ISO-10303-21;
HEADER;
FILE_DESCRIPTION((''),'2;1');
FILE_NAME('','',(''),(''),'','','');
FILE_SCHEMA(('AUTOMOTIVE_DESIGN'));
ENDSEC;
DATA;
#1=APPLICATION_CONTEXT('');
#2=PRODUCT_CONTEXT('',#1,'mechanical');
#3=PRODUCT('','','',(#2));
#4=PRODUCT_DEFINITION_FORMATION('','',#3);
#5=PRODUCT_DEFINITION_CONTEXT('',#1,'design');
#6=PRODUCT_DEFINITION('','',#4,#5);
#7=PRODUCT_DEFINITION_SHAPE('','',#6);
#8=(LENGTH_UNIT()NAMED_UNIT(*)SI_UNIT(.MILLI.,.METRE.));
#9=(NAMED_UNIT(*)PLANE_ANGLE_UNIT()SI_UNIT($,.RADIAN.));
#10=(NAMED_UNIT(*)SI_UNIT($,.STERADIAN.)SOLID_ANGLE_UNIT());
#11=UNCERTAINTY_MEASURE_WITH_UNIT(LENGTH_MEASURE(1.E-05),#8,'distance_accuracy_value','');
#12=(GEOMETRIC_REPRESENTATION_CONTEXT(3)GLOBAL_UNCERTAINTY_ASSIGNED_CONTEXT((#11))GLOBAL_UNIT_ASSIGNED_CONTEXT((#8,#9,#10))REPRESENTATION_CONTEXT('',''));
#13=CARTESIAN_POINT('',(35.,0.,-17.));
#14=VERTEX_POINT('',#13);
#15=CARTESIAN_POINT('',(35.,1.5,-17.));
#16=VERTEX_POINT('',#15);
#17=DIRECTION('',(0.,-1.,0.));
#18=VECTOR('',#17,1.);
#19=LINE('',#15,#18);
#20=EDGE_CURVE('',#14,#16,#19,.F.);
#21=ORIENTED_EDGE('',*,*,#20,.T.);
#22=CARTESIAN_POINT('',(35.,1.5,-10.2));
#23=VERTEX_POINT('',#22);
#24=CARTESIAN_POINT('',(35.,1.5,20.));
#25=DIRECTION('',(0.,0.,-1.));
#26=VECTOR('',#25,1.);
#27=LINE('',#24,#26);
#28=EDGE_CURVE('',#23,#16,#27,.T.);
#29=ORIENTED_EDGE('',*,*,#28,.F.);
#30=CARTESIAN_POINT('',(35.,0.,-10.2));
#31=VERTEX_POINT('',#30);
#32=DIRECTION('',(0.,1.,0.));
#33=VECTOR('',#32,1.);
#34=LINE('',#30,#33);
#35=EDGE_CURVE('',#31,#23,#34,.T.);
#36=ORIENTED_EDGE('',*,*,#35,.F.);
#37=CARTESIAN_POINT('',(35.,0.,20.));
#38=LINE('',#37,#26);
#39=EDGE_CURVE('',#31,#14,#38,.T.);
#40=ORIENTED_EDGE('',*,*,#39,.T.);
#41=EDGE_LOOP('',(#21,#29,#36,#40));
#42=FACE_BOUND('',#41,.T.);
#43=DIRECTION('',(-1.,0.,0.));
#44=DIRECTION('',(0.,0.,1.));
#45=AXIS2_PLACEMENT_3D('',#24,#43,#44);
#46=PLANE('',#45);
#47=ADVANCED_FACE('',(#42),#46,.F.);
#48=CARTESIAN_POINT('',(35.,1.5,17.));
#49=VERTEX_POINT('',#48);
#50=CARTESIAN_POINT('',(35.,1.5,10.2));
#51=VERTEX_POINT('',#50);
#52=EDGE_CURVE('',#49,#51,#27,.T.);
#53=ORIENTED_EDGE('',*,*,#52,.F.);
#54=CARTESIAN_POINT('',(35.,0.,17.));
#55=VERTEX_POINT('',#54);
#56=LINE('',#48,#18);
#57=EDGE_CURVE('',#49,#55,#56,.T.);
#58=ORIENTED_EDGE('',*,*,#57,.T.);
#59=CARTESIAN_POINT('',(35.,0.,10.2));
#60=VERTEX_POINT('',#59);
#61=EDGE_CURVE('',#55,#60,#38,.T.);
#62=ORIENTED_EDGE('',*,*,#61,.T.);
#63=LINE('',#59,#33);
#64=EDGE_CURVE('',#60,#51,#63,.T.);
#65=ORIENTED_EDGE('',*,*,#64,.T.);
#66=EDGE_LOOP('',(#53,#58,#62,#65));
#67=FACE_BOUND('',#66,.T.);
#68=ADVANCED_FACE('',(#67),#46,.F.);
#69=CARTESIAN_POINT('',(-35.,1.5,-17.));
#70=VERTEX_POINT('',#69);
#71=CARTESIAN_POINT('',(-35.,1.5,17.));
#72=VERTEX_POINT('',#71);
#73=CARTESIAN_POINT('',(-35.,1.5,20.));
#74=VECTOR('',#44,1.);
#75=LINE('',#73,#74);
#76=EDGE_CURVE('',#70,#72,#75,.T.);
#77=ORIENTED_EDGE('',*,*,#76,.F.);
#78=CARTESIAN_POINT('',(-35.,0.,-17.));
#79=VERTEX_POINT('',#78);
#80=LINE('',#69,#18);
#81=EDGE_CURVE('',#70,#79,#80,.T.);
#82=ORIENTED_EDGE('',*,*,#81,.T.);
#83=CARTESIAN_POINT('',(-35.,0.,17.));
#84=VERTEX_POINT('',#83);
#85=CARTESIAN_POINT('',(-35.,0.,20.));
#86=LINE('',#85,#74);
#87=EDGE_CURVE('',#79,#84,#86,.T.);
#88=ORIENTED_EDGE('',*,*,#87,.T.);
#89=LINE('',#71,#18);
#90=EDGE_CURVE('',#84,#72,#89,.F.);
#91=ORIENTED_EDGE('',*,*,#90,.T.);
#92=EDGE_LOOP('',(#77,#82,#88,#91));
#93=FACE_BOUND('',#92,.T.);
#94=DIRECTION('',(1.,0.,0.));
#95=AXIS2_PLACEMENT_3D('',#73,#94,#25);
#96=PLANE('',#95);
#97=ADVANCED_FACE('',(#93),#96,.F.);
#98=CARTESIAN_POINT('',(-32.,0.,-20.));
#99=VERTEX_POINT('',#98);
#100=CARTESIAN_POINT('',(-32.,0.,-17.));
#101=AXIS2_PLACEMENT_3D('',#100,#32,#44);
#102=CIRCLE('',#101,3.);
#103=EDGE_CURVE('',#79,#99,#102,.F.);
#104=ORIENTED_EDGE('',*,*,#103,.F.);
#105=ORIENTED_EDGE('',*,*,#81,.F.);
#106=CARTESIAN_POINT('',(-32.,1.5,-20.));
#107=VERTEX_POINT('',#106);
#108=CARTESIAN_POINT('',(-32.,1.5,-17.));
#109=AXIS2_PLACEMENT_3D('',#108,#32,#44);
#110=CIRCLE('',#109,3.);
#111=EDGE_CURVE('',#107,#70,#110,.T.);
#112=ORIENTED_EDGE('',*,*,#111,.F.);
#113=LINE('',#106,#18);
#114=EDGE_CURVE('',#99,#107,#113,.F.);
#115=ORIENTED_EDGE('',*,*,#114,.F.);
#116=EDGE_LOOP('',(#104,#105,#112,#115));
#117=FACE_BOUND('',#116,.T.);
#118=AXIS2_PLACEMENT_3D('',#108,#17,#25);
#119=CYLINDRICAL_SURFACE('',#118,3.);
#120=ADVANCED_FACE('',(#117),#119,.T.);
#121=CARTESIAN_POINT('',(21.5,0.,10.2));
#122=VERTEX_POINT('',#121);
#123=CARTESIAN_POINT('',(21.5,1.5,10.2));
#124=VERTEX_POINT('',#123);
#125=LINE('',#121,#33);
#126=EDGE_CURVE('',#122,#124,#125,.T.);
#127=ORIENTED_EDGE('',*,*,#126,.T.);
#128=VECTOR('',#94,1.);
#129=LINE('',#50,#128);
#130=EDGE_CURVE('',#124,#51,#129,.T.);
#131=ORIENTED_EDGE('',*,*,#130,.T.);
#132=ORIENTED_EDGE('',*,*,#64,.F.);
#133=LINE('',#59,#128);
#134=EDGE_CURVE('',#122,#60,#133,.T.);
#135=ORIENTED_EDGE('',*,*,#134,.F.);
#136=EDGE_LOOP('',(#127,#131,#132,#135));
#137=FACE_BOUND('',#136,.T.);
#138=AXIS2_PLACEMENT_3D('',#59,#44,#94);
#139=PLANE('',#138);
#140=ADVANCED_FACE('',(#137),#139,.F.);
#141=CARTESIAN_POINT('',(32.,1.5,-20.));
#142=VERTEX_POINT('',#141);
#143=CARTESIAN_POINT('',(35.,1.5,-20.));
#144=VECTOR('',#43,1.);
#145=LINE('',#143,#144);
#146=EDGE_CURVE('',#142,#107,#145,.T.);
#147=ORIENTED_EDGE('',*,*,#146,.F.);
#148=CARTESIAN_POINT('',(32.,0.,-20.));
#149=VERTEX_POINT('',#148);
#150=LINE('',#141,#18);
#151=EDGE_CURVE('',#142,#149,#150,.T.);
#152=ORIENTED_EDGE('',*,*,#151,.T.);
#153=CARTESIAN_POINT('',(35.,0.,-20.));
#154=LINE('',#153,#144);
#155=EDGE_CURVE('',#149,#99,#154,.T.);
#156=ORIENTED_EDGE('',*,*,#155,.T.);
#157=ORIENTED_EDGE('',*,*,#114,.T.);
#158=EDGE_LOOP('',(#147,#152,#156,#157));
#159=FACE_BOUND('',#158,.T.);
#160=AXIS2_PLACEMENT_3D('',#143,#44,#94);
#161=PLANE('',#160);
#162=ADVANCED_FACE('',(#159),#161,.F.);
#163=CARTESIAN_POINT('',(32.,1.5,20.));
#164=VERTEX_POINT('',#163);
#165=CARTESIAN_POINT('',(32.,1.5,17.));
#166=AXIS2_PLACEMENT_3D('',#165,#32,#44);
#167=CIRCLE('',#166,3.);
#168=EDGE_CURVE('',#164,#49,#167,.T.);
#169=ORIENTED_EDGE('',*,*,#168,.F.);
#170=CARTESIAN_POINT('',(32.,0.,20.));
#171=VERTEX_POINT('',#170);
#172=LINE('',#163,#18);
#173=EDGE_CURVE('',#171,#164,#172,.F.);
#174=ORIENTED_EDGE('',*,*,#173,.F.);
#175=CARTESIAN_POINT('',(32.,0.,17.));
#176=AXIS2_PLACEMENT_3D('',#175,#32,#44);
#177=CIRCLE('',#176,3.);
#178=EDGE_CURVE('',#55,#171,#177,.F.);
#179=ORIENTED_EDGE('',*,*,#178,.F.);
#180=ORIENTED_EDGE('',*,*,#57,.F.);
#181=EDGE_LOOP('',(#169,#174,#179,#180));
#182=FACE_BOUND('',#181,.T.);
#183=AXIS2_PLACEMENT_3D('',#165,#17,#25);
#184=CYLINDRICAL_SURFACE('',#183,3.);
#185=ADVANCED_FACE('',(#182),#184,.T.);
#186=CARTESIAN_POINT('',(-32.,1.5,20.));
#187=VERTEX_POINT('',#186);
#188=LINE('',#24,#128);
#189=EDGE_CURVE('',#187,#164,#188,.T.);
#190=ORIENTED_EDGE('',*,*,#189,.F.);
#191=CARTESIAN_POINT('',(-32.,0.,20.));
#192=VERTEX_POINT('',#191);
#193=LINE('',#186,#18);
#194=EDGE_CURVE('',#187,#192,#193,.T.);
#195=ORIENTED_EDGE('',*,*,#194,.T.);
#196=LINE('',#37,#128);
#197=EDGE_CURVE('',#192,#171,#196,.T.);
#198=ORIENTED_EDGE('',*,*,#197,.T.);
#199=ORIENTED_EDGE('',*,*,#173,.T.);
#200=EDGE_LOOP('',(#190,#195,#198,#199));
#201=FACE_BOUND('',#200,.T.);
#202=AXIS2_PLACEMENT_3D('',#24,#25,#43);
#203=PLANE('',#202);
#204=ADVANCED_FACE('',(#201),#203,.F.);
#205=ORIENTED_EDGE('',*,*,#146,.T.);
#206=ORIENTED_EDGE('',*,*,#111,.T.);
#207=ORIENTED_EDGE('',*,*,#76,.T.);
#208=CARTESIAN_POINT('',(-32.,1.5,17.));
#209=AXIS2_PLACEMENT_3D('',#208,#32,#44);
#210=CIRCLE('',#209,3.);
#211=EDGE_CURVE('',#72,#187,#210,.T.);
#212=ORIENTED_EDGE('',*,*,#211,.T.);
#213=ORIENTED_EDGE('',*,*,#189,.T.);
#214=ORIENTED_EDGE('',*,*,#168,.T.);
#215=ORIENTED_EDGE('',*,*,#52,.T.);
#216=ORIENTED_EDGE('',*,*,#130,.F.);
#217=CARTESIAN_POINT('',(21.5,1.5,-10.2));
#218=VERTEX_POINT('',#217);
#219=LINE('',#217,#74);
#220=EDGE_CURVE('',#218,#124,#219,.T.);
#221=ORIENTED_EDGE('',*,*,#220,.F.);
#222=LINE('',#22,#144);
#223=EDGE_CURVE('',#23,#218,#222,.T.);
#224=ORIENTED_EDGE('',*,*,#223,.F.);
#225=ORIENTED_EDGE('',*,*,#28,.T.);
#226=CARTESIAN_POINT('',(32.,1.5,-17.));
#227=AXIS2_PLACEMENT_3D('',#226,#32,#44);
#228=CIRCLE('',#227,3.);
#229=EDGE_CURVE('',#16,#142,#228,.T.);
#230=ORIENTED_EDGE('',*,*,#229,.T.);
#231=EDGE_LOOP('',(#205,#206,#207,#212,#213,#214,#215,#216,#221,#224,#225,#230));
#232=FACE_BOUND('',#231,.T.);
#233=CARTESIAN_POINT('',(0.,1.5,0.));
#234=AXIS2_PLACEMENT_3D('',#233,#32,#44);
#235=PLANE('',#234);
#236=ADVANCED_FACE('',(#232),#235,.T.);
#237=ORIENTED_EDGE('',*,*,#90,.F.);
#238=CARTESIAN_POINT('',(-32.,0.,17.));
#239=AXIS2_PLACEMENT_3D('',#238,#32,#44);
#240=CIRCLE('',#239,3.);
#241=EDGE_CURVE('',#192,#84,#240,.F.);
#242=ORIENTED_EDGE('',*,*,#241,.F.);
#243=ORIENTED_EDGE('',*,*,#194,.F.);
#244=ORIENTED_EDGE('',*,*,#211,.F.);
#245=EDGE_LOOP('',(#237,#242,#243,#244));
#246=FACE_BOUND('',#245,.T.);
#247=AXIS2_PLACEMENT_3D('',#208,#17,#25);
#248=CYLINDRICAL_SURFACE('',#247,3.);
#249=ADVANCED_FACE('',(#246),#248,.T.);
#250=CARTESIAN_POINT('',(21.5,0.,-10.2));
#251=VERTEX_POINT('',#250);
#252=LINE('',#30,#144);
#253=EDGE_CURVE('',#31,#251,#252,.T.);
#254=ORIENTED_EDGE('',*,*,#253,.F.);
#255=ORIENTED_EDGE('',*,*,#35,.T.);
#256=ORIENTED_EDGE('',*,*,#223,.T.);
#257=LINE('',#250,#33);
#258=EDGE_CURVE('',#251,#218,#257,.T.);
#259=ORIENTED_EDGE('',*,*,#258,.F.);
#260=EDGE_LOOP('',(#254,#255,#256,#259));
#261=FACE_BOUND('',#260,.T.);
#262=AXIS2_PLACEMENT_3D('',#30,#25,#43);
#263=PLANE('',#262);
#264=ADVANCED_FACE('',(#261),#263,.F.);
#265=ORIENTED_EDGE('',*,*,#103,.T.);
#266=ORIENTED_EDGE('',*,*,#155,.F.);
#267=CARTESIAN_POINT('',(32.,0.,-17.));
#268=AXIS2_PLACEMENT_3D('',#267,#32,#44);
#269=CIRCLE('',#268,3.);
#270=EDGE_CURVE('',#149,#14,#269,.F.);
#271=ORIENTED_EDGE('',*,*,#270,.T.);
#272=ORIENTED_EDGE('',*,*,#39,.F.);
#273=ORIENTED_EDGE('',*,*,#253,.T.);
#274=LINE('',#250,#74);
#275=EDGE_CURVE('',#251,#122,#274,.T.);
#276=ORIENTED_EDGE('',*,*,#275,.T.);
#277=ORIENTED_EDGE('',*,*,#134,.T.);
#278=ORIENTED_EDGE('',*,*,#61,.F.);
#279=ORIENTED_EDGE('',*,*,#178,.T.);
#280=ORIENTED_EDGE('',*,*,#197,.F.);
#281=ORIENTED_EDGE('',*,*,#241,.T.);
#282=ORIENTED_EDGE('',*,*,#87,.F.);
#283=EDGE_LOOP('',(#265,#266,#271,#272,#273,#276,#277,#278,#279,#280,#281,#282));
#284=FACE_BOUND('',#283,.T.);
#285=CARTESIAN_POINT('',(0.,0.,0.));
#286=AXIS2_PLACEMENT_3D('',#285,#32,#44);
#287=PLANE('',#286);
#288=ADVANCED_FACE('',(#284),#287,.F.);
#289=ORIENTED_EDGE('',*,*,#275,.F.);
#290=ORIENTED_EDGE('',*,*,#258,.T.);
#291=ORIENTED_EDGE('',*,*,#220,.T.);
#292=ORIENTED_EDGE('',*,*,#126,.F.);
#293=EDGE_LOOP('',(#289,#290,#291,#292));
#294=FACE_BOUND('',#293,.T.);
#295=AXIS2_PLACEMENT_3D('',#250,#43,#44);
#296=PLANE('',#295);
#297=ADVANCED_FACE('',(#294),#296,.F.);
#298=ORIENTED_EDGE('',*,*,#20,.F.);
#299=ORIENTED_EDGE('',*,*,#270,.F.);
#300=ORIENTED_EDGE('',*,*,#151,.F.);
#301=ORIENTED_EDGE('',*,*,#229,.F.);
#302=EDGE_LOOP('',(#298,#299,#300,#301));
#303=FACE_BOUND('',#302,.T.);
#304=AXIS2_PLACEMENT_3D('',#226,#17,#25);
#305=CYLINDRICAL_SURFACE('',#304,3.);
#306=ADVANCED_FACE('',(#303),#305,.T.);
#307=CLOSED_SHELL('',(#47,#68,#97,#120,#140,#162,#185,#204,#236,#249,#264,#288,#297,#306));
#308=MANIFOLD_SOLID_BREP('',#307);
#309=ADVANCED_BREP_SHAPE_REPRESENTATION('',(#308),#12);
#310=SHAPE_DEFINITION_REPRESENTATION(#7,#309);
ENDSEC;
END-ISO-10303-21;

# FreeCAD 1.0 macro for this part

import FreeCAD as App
import Part
import Sketcher

V = App.Vector
Q = App.Units.Quantity


def edges_at(feature, points):
    """Names of the edges that pass closest to the given points."""
    edges = feature.Shape.Edges
    near = lambda p: min(range(len(edges)), key=lambda i: edges[i].distToShape(Part.Vertex(*p))[0])
    return sorted({f"Edge{near(p) + 1}" for p in points})


def add_polygon(sketch, points):
    """Adds a closed chain of lines whose ends are joined by coincident constraints."""
    first, n = sketch.GeometryCount, len(points)
    for a, b in zip(points, points[1:] + points[:1]):
        sketch.addGeometry(Part.LineSegment(App.Vector(*a, 0), App.Vector(*b, 0)), False)
    for i in range(n):
        sketch.addConstraint(Sketcher.Constraint("Coincident", first + i, 2, first + (i + 1) % n, 1))

doc = App.newDocument("Part")
body = doc.addObject("PartDesign::Body", "Body")

sketch1 = doc.addObject("Sketcher::SketchObject", "Sketch")
body.addObject(sketch1)
sketch1.AttachmentSupport = (doc.XZ_Plane, [""])
sketch1.MapMode = "FlatFace"
add_polygon(sketch1, [(-35, -20), (-35, 20), (35, 20), (35, -20)])
sketch1.addConstraint(Sketcher.Constraint("Vertical", 0))
sketch1.addConstraint(Sketcher.Constraint("Horizontal", 1))
sketch1.addConstraint(Sketcher.Constraint("Vertical", 2))
sketch1.addConstraint(Sketcher.Constraint("Horizontal", 3))
sketch1.addConstraint(Sketcher.Constraint("Symmetric", 0, 2, 2, 2, -1, 1))
sketch1.addConstraint(Sketcher.Constraint("DistanceX", 1, 1, 1, 2, Q("70 mm")))
sketch1.addConstraint(Sketcher.Constraint("DistanceY", 0, 1, 0, 2, Q("40 mm")))
pad1 = doc.addObject("PartDesign::Pad", "Pad")
body.addObject(pad1)
pad1.Profile = sketch1
pad1.Length = 1.5
pad1.Reversed = True
doc.recompute()

fillet = doc.addObject("PartDesign::Fillet", "Fillet")
body.addObject(fillet)
fillet.Base = (pad1, edges_at(pad1, [
    (-35, 0.75, -20),
    (35, 0.75, -20),
    (35, 0.75, 20),
    (-35, 0.75, 20),
]))
fillet.Radius = 3

sketch2 = doc.addObject("Sketcher::SketchObject", "Sketch001")
body.addObject(sketch2)
sketch2.AttachmentSupport = (doc.XZ_Plane, [""])
sketch2.MapMode = "FlatFace"
sketch2.AttachmentOffset = App.Placement(V(0, 0, -1.5), App.Rotation())
add_polygon(sketch2, [(21.5, -10.2), (21.5, 10.2), (35, 10.2), (35, -10.2)])
sketch2.addConstraint(Sketcher.Constraint("Vertical", 0))
sketch2.addConstraint(Sketcher.Constraint("Horizontal", 1))
sketch2.addConstraint(Sketcher.Constraint("Vertical", 2))
sketch2.addConstraint(Sketcher.Constraint("Horizontal", 3))
sketch2.addConstraint(Sketcher.Constraint("DistanceX", 1, 1, 1, 2, Q("13.5 mm")))
sketch2.addConstraint(Sketcher.Constraint("DistanceY", 0, 1, 0, 2, Q("20.4 mm")))
sketch2.addConstraint(Sketcher.Constraint("DistanceX", -1, 1, 1, 2, Q("35 mm")))
sketch2.addConstraint(Sketcher.Constraint("DistanceY", -1, 1, 0, 2, Q("10.2 mm")))
pocket1 = doc.addObject("PartDesign::Pocket", "Pocket")
body.addObject(pocket1)
pocket1.Profile = sketch2
pocket1.Type = "ThroughAll"
pocket1.Reversed = True

doc.recompute()
